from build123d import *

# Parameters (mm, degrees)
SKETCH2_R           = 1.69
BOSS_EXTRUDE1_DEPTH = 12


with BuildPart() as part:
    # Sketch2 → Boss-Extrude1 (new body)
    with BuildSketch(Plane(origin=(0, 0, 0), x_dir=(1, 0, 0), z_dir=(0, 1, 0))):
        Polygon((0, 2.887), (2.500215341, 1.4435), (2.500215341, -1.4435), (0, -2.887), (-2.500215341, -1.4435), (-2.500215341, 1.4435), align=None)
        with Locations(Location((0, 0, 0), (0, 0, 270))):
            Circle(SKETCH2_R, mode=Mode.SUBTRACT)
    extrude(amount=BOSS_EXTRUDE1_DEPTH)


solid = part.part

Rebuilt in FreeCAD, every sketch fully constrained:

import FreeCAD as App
import Part
import Sketcher
Q = App.Units.Quantity

doc = App.newDocument("Part")
body = doc.addObject("PartDesign::Body", "Body")

sketch1 = doc.addObject("Sketcher::SketchObject", "Sketch")
body.addObject(sketch1)
sketch1.AttachmentSupport = (doc.XZ_Plane, [""])
sketch1.MapMode = "FlatFace"
sketch1.addGeometry([
    Part.LineSegment(App.Vector(2.500215, -1.4435, 0), App.Vector(0, -2.887, 0)),
    Part.LineSegment(App.Vector(0, -2.887, 0), App.Vector(-2.500215, -1.4435, 0)),
    Part.LineSegment(App.Vector(-2.500215, -1.4435, 0), App.Vector(-2.500215, 1.4435, 0)),
    Part.LineSegment(App.Vector(-2.500215, 1.4435, 0), App.Vector(0, 2.887, 0)),
    Part.LineSegment(App.Vector(0, 2.887, 0), App.Vector(2.500215, 1.4435, 0)),
    Part.LineSegment(App.Vector(2.500215, 1.4435, 0), App.Vector(2.500215, -1.4435, 0)),
    Part.Circle(App.Vector(0, 0, 0), App.Vector(0, 0, 1), 1.69),
], False)
sketch1.addConstraint([
    Sketcher.Constraint("Coincident", 0, 2, 1, 1),
    Sketcher.Constraint("Coincident", 1, 2, 2, 1),
    Sketcher.Constraint("Coincident", 2, 2, 3, 1),
    Sketcher.Constraint("Coincident", 3, 2, 4, 1),
    Sketcher.Constraint("Coincident", 4, 2, 5, 1),
    Sketcher.Constraint("Coincident", 5, 2, 0, 1),
    Sketcher.Constraint("Vertical", 2),
    Sketcher.Constraint("Vertical", 5),
    Sketcher.Constraint("Coincident", 6, 3, -1, 1),
    Sketcher.Constraint("Symmetric", 0, 2, 3, 2, -1, 1),
    Sketcher.Constraint("Symmetric", 1, 2, 4, 2, -1, 1),
    Sketcher.Constraint("PointOnObject", 0, 2, -2),
    Sketcher.Constraint("Parallel", 0, 3),
    Sketcher.Constraint("Horizontal", 2, 2, 4, 2),
    Sketcher.Constraint("Diameter", 6, Q("3.38 mm")),
    Sketcher.Constraint("Angle", 0, Q("-150 deg")),
    Sketcher.Constraint("DistanceY", 2, 1, 2, 2, Q("2.887 mm")),
    Sketcher.Constraint("Distance", 0, Q("2.887 mm")),
])
pad1 = doc.addObject("PartDesign::Pad", "Pad")
body.addObject(pad1)
pad1.Profile = sketch1
pad1.Length = 12
pad1.Reversed = True

doc.recompute()
